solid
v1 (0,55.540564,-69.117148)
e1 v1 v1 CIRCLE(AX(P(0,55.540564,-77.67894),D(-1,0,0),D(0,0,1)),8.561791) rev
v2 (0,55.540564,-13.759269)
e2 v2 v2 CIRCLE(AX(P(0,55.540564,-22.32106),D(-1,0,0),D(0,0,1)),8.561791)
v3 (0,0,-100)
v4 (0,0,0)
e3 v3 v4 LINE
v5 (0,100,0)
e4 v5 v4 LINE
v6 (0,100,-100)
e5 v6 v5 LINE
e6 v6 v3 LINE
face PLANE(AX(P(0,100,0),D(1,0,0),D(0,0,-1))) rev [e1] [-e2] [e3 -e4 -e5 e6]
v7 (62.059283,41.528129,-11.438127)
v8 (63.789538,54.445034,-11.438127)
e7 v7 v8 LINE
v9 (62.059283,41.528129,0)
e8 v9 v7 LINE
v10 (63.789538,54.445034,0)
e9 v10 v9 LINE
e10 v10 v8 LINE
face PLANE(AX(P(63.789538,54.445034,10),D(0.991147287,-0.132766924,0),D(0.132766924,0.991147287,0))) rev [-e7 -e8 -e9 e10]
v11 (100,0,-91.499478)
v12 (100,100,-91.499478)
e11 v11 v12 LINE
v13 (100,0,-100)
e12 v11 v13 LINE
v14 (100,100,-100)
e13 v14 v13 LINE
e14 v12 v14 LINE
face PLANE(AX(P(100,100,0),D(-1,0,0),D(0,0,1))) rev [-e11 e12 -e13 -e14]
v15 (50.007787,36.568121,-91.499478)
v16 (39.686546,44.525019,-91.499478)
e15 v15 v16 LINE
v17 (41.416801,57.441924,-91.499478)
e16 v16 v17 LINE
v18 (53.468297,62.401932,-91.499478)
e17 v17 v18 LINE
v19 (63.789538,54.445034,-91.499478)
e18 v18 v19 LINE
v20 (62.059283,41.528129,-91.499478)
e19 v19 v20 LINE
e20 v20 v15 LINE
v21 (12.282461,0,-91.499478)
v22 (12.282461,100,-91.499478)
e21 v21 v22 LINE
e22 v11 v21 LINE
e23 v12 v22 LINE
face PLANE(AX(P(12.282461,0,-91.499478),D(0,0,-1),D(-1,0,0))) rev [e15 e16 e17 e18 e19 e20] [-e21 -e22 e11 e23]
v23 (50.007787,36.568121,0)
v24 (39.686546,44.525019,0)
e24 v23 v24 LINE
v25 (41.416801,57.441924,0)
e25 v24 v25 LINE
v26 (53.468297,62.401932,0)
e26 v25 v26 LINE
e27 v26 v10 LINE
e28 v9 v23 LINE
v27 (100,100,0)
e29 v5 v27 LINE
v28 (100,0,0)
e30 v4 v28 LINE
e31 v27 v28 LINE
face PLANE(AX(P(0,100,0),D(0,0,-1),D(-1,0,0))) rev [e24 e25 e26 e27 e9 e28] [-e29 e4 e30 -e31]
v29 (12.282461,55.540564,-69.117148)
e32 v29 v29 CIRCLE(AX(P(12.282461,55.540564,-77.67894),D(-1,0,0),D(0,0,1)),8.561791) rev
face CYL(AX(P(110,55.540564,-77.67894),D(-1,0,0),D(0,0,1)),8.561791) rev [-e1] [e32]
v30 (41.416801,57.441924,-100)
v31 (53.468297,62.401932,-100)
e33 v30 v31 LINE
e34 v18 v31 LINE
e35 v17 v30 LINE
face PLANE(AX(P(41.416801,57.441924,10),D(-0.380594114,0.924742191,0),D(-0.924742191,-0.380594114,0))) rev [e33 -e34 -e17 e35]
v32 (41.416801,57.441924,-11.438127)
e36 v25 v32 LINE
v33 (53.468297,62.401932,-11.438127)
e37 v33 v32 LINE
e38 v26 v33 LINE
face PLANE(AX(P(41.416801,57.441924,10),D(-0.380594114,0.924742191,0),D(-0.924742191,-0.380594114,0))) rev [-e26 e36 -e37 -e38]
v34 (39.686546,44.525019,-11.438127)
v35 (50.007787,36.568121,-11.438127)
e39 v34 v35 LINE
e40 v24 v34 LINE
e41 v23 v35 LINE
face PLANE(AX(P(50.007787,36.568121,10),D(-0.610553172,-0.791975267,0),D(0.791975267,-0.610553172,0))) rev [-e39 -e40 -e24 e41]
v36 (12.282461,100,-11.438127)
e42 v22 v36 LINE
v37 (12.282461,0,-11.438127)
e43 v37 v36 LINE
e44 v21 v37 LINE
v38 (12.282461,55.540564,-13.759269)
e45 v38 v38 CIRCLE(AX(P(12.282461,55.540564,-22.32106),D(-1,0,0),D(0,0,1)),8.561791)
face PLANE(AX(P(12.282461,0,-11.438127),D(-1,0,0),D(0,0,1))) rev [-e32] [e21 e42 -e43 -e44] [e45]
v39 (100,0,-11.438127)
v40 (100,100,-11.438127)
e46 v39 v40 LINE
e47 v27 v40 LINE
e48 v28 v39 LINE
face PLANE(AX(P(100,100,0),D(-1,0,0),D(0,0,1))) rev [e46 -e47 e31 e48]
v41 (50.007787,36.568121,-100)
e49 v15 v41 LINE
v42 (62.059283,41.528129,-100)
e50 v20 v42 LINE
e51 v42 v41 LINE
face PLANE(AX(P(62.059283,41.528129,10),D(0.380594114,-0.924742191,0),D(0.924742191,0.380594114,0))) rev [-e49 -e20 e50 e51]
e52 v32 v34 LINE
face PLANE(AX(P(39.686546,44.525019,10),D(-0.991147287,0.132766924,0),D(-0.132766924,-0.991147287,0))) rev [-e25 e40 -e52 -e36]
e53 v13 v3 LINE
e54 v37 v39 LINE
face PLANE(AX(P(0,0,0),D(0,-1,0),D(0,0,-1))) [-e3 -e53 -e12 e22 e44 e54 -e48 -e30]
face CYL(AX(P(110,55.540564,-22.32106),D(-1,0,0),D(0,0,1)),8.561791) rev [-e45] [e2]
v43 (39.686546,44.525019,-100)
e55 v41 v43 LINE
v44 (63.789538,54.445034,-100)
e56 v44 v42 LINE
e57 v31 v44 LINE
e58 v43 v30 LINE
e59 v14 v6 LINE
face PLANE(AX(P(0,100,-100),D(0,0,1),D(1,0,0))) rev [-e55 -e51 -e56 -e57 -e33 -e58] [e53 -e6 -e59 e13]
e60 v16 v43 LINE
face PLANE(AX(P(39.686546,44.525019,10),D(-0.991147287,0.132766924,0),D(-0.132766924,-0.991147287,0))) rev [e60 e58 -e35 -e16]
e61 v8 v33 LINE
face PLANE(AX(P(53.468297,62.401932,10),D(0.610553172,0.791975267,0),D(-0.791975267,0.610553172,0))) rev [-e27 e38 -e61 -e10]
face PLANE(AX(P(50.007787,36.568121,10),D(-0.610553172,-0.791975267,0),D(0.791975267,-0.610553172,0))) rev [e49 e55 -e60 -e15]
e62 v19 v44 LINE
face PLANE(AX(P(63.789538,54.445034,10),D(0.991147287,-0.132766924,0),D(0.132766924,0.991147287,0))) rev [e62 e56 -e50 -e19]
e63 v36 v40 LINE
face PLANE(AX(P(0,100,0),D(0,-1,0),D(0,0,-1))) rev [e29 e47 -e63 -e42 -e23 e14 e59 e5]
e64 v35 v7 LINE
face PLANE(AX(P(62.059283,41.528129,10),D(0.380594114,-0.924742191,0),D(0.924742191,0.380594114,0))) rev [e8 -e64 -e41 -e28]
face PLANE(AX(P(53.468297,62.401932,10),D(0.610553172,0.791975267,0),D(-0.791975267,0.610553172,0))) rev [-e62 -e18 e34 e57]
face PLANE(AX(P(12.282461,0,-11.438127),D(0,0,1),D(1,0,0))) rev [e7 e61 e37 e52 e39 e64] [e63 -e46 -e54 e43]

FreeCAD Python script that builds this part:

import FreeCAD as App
import Part
import Sketcher


def add_polygon(sketch, points):
    """Adds a closed chain of lines whose ends are joined by coincident constraints."""
    first, n = sketch.GeometryCount, len(points)
    for a, b in zip(points, points[1:] + points[:1]):
        sketch.addGeometry(Part.LineSegment(App.Vector(*a, 0), App.Vector(*b, 0)), False)
    for i in range(n):
        sketch.addConstraint(Sketcher.Constraint("Coincident", first + i, 2, first + (i + 1) % n, 1))

doc = App.newDocument("Part")
body = doc.addObject("PartDesign::Body", "Body")

sketch1 = doc.addObject("Sketcher::SketchObject", "Sketch")
body.addObject(sketch1)
sketch1.AttachmentSupport = (doc.XZ_Plane, [""])
sketch1.MapMode = "FlatFace"
add_polygon(sketch1, [(0, -100), (0, 0), (100, 0), (100, -100)])
sketch1.addConstraint([
    Sketcher.Constraint("Vertical", 0),
    Sketcher.Constraint("Horizontal", 1),
    Sketcher.Constraint("Vertical", 2),
    Sketcher.Constraint("Horizontal", 3),
    Sketcher.Constraint("Coincident", 0, 2, -1, 1),
    Sketcher.Constraint("Equal", 3, 0),
    Sketcher.Constraint("DistanceX", 1, 1, 1, 2, 100.0),
])
pad1 = doc.addObject("PartDesign::Pad", "Pad")
body.addObject(pad1)
pad1.Profile = sketch1
pad1.Length = 100
pad1.Reversed = True

sketch2 = doc.addObject("Sketcher::SketchObject", "Sketch001")
body.addObject(sketch2)
sketch2.AttachmentSupport = (doc.XZ_Plane, [""])
sketch2.MapMode = "FlatFace"
sketch2.AttachmentOffset = App.Placement(App.Vector(0, 0, -100), App.Rotation())
add_polygon(sketch2, [(12, -91), (12, -11), (100, -11), (100, -91)])
sketch2.addConstraint([
    Sketcher.Constraint("Vertical", 0),
    Sketcher.Constraint("Horizontal", 1),
    Sketcher.Constraint("Vertical", 2),
    Sketcher.Constraint("Horizontal", 3),
    Sketcher.Constraint("DistanceX", -1, 1, 1, 2, 100.0),
    Sketcher.Constraint("DistanceX", 1, 1, 1, 2, 87.717539),
    Sketcher.Constraint("DistanceY", 0, 1, 0, 2, 80.061351),
    Sketcher.Constraint("DistanceY", 2, 2, -1, 1, 91.499478),
])
pocket1 = doc.addObject("PartDesign::Pocket", "Pocket")
body.addObject(pocket1)
pocket1.Profile = sketch2
pocket1.Length = 100
pocket1.Reversed = True

sketch3 = doc.addObject("Sketcher::SketchObject", "Sketch002")
body.addObject(sketch3)
sketch3.AttachmentSupport = (doc.XY_Plane, [""])
sketch3.MapMode = "FlatFace"
sketch3.AttachmentOffset = App.Placement(App.Vector(0, 0, -100), App.Rotation())
add_polygon(sketch3, [(40, 45), (41, 57), (53, 62), (64, 54), (62, 42), (50, 37)])
sketch3.addConstraint([
    Sketcher.Constraint("Parallel", 0, 3),
    Sketcher.Constraint("Parallel", 1, 4),
    Sketcher.Constraint("Parallel", 2, 5),
    Sketcher.Constraint("Equal", 0, 1),
    Sketcher.Constraint("Equal", 1, 2),
    Sketcher.Constraint("Equal", 2, 3),
    Sketcher.Constraint("DistanceX", -1, 1, 0, 2, 41.416801),
    Sketcher.Constraint("DistanceY", -1, 1, 1, 2, 62.401932),
    Sketcher.Constraint("DistanceY", -1, 1, 3, 2, 41.528129),
    Sketcher.Constraint("DistanceY", -1, 1, 4, 2, 36.568121),
    Sketcher.Constraint("DistanceY", -1, 1, 5, 2, 44.525019),
    Sketcher.Constraint("DistanceX", 1, 2, 2, 2, 10.321241),
])
pocket2 = doc.addObject("PartDesign::Pocket", "Pocket001")
body.addObject(pocket2)
pocket2.Profile = sketch3
pocket2.Length = 110
pocket2.Reversed = True

sketch4 = doc.addObject("Sketcher::SketchObject", "Sketch003")
body.addObject(sketch4)
sketch4.AttachmentSupport = (doc.YZ_Plane, [""])
sketch4.MapMode = "FlatFace"
sketch4.addGeometry([
    Part.Circle(App.Vector(56, -78, 0), App.Vector(0, 0, 1), 9),
    Part.Circle(App.Vector(56, -22, 0), App.Vector(0, 0, 1), 9),
], False)
sketch4.addConstraint([
    Sketcher.Constraint("Equal", 0, 1),
    Sketcher.Constraint("Vertical", 0, 3, 1, 3),
    Sketcher.Constraint("Diameter", 0, 17.123582),
    Sketcher.Constraint("DistanceY", 0, 3, -1, 1, 77.67894),
    Sketcher.Constraint("DistanceY", 1, 3, -1, 1, 22.32106),
    Sketcher.Constraint("DistanceX", -1, 1, 0, 3, 55.540564),
])
pocket3 = doc.addObject("PartDesign::Pocket", "Pocket002")
body.addObject(pocket3)
pocket3.Profile = sketch4
pocket3.Length = 110
pocket3.Reversed = True

doc.recompute()
